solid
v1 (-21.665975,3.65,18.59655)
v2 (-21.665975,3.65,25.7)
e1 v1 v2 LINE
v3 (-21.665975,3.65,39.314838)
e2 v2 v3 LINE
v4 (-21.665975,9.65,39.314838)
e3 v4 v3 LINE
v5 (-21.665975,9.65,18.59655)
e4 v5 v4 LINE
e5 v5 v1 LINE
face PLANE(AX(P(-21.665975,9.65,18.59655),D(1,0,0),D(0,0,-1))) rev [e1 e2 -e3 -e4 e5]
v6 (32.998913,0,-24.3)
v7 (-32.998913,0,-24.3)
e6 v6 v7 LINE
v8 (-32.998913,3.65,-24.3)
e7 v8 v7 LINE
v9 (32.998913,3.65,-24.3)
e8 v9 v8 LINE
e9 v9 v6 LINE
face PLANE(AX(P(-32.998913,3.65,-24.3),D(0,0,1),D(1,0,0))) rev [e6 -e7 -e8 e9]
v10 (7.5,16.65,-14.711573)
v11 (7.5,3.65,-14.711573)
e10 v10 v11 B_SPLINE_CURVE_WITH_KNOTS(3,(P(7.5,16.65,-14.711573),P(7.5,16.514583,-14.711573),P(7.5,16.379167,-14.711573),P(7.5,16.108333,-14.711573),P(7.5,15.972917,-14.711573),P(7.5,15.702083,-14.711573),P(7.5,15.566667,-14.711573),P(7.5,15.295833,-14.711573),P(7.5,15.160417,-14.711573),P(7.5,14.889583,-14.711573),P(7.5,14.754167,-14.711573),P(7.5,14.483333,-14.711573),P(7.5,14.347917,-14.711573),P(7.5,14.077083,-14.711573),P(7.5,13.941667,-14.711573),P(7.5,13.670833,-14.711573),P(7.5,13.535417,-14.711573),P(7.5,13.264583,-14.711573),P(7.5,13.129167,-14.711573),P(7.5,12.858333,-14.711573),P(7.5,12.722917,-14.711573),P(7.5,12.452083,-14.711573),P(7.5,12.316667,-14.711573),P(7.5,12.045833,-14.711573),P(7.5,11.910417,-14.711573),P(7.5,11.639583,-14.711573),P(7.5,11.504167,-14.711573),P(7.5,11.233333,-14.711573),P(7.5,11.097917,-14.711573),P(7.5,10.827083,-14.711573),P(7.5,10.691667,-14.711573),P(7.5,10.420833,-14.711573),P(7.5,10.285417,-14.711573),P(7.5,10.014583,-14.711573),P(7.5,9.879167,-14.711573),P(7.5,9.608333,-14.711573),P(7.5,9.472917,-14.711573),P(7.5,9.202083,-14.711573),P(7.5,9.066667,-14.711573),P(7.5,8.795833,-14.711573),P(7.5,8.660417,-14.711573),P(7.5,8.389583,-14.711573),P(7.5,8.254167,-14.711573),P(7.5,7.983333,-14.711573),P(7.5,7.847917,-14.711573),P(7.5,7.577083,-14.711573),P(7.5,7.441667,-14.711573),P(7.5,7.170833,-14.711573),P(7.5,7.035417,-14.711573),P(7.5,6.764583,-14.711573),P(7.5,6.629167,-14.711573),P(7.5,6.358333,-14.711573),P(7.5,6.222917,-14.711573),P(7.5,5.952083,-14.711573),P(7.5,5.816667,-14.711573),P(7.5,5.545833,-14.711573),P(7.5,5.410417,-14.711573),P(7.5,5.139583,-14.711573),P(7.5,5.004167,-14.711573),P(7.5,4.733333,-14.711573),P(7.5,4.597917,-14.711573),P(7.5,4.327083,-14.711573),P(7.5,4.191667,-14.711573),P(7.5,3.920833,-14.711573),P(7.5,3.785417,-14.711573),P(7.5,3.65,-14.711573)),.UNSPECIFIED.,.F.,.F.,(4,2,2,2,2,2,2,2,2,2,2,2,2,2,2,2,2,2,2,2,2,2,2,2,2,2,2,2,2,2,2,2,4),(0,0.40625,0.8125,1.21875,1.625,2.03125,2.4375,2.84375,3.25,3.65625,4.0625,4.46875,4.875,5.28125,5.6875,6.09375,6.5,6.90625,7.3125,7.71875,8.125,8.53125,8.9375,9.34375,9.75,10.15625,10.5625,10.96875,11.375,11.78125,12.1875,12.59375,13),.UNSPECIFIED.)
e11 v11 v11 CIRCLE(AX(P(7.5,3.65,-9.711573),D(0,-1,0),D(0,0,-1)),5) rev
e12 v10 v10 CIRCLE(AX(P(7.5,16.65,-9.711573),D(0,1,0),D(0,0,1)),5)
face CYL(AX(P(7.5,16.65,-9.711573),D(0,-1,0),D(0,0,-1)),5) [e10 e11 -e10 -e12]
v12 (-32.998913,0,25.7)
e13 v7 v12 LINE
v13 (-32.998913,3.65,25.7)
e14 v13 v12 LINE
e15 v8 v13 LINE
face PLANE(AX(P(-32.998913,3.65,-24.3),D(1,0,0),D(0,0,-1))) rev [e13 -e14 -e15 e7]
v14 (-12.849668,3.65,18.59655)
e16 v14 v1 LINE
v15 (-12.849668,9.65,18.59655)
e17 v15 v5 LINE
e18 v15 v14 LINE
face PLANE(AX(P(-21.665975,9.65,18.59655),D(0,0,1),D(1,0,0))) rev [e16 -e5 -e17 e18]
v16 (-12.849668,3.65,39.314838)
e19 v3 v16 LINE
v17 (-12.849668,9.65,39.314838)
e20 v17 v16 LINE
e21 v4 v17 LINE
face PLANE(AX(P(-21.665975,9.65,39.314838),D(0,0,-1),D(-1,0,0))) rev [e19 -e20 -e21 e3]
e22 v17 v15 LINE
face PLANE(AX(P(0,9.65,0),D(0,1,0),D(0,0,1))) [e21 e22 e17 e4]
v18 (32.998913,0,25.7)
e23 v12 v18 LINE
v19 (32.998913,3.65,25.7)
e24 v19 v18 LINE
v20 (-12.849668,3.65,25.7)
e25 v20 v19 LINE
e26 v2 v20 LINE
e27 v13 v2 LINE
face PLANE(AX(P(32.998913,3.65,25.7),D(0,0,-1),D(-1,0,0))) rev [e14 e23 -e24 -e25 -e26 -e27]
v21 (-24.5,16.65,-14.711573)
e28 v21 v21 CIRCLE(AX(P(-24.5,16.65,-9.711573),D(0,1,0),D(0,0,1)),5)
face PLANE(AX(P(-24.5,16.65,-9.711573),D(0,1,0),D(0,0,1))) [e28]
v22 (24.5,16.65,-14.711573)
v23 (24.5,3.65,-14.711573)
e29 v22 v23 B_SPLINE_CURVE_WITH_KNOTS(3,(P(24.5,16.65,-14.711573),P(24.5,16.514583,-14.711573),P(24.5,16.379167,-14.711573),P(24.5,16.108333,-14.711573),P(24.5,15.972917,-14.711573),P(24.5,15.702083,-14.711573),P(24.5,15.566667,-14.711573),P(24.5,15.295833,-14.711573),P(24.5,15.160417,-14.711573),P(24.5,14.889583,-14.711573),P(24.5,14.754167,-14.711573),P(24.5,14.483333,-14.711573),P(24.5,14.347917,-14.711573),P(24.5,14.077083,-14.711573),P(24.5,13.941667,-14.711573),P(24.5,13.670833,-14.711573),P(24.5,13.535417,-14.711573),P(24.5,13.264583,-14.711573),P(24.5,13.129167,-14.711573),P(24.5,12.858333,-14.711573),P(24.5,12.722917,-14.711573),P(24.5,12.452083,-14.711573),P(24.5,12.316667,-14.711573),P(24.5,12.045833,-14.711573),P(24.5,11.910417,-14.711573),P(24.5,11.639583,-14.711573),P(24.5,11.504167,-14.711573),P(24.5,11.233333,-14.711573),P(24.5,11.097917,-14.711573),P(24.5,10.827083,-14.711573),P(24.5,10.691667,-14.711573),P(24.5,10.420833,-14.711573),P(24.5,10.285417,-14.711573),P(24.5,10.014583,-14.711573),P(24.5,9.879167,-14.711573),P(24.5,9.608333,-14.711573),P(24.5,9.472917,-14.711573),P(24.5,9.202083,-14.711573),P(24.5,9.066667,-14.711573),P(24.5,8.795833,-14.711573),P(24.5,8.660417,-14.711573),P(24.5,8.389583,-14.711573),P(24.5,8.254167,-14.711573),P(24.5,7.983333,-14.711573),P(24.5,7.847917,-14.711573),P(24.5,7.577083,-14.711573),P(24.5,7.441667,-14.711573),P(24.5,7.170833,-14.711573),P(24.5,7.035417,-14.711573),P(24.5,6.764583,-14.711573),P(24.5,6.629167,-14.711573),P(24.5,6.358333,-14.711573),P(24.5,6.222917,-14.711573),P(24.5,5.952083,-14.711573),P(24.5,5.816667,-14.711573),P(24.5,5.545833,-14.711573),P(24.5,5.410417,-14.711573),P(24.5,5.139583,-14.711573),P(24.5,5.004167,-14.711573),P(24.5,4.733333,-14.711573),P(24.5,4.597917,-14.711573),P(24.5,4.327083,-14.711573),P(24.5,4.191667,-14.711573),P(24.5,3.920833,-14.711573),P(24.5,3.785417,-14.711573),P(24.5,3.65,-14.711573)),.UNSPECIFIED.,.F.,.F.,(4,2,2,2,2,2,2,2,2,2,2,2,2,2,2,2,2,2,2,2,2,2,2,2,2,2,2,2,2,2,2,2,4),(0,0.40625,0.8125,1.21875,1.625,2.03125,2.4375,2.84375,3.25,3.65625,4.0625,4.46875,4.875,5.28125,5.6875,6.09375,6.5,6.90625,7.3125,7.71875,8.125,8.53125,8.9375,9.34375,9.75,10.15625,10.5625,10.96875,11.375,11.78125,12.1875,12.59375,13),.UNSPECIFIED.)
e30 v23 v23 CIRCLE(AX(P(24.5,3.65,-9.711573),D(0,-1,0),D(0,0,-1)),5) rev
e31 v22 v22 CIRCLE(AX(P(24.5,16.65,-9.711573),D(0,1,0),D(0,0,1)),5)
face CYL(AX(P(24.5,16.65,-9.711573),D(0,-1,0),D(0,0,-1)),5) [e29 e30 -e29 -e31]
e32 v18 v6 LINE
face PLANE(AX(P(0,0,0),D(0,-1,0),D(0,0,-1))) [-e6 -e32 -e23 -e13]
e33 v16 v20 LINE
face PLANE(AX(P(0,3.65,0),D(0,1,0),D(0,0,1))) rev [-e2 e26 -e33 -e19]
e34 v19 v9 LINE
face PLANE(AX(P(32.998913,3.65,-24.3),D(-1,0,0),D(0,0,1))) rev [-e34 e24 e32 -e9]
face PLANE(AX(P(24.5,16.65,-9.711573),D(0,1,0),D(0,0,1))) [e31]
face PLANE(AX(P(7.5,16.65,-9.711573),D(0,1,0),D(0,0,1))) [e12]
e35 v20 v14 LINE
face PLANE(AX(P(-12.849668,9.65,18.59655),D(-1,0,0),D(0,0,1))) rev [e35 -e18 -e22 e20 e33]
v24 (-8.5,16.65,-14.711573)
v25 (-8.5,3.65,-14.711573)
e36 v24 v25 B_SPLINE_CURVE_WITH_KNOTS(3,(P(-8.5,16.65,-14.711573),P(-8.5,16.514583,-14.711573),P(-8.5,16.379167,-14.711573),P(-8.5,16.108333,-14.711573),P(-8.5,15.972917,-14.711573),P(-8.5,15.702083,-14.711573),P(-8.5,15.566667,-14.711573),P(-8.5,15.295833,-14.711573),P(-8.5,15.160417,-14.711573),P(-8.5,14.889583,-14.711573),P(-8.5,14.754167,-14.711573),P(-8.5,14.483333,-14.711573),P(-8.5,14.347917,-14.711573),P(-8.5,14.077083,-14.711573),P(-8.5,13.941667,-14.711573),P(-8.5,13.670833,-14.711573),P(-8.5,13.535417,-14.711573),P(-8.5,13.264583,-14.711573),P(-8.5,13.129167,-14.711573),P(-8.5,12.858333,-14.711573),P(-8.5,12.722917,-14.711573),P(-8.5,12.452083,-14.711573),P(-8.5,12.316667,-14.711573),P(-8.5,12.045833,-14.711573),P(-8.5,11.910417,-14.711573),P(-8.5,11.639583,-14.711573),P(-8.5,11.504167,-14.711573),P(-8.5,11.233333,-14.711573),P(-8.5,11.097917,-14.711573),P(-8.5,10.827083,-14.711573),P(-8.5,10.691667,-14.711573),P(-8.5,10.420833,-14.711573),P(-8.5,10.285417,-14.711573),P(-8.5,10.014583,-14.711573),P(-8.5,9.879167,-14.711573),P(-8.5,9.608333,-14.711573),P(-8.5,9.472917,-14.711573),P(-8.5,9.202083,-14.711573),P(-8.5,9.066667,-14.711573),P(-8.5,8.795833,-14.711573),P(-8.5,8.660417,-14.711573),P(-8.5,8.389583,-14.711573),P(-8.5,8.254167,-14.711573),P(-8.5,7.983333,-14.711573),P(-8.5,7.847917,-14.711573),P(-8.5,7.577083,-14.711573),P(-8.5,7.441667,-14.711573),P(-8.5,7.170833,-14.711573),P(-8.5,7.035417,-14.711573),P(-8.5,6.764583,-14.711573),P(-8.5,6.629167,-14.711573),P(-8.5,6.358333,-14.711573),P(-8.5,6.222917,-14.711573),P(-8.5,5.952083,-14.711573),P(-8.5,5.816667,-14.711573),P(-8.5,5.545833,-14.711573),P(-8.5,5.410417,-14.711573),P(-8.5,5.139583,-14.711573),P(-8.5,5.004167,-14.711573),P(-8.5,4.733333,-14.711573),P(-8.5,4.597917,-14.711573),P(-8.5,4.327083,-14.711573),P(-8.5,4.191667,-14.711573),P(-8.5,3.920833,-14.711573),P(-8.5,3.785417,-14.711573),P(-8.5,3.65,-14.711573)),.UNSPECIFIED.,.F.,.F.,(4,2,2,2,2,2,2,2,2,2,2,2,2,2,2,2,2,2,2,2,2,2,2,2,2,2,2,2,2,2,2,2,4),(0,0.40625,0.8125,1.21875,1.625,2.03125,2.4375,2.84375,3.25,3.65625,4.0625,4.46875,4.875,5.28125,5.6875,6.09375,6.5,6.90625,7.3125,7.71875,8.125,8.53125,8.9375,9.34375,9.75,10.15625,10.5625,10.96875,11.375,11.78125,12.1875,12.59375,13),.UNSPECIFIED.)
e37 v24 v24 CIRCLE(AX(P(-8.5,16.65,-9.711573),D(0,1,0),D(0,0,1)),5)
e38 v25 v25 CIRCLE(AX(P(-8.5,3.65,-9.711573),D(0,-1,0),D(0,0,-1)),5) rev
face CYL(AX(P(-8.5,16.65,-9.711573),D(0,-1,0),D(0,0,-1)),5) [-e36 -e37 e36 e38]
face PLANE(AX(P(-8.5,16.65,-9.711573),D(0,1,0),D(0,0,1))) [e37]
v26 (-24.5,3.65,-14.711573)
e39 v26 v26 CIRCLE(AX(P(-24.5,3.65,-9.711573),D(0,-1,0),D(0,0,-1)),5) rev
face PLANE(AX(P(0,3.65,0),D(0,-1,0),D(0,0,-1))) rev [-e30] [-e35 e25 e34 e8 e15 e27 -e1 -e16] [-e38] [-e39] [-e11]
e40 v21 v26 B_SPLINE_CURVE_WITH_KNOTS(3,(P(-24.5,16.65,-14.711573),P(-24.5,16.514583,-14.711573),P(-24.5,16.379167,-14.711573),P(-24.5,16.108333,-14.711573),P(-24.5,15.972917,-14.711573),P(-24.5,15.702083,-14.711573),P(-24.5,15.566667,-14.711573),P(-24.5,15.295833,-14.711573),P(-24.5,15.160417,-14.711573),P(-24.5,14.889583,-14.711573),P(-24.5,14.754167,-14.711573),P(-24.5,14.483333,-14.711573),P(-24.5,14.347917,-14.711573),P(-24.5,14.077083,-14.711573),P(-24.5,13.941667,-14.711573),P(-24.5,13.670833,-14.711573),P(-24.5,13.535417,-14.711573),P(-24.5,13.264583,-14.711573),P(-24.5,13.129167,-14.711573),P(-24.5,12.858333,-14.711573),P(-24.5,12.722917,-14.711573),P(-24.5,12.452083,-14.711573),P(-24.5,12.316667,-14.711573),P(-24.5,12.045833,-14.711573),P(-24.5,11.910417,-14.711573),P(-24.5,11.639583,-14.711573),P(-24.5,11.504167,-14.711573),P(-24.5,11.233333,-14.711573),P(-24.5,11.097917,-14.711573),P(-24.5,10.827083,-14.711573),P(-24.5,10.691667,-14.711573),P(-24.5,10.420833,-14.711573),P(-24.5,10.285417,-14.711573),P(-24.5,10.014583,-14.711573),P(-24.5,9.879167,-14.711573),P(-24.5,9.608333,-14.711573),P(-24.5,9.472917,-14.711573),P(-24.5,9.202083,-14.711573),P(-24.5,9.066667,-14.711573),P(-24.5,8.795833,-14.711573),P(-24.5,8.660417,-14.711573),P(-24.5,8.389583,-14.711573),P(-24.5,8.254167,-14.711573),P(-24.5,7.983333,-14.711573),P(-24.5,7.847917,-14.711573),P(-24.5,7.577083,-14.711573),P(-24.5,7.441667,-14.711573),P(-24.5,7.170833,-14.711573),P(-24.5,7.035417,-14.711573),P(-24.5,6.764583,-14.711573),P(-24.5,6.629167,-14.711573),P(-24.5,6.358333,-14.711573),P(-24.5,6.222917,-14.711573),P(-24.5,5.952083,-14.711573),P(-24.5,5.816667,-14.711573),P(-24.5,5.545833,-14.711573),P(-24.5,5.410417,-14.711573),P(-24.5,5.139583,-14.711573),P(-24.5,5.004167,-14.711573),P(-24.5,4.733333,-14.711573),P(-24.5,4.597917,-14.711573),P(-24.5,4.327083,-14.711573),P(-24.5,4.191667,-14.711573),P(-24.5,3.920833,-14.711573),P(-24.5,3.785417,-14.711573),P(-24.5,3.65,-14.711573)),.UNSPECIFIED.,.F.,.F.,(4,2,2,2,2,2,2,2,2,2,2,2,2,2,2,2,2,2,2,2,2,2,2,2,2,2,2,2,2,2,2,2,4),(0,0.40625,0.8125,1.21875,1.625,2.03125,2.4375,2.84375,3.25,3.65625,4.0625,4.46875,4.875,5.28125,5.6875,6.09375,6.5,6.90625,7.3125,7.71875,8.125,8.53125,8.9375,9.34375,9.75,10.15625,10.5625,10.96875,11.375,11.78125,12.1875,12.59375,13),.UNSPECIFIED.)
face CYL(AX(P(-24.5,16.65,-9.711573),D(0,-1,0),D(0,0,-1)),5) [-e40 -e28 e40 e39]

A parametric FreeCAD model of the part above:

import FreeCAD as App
import Part
import Sketcher

doc = App.newDocument("Part")
body = doc.addObject("PartDesign::Body", "Body")

# Sketch on XZ plane
sketch1 = body.newObject("Sketcher::SketchObject", "Sketch")
sketch1.AttachmentSupport = (doc.getObject("XZ_Plane"), [""])
sketch1.MapMode = "FlatFace"
sketch1.addGeometry([
    Part.LineSegment(App.Vector(-32.998913, -24.3, 0), App.Vector(-32.998913, 25.7, 0)),
    Part.LineSegment(App.Vector(-32.998913, 25.7, 0), App.Vector(32.998913, 25.7, 0)),
    Part.LineSegment(App.Vector(32.998913, 25.7, 0), App.Vector(32.998913, -24.3, 0)),
    Part.LineSegment(App.Vector(32.998913, -24.3, 0), App.Vector(-32.998913, -24.3, 0)),
], False)
sketch1.addConstraint([
    Sketcher.Constraint("Coincident", 0, 2, 1, 1),
    Sketcher.Constraint("Coincident", 1, 2, 2, 1),
    Sketcher.Constraint("Coincident", 2, 2, 3, 1),
    Sketcher.Constraint("Coincident", 3, 2, 0, 1),
    Sketcher.Constraint("Vertical", 0),
    Sketcher.Constraint("Horizontal", 1),
    Sketcher.Constraint("Vertical", 2),
    Sketcher.Constraint("Horizontal", 3),
    Sketcher.Constraint("DistanceY", 0, 1, 0, 2, 50.0),
    Sketcher.Constraint("DistanceY", -1, 1, 0, 2, 25.7),
    Sketcher.Constraint("DistanceX", 1, 1, 1, 2, 65.997827),
    Sketcher.Constraint("DistanceX", 0, 2, -1, 1, 32.998913),
])
pad1 = body.newObject("PartDesign::Pad", "Pad")
pad1.Profile = sketch1
pad1.Length = 3.65
pad1.Reversed = True

# Sketch on XZ plane
sketch2 = body.newObject("Sketcher::SketchObject", "Sketch001")
sketch2.AttachmentSupport = (doc.getObject("XZ_Plane"), [""])
sketch2.MapMode = "FlatFace"
sketch2.AttachmentOffset = App.Placement(App.Vector(0, 0, -3.65), App.Rotation())
sketch2.addGeometry([
    Part.Circle(App.Vector(-24.5, -9.711573, 0), App.Vector(0, 0, 1), 5),
    Part.Circle(App.Vector(-8.5, -9.711573, 0), App.Vector(0, 0, 1), 5),
    Part.Circle(App.Vector(7.5, -9.711573, 0), App.Vector(0, 0, 1), 5),
    Part.Circle(App.Vector(24.5, -9.711573, 0), App.Vector(0, 0, 1), 5),
], False)
sketch2.addConstraint([
    Sketcher.Constraint("Equal", 0, 1),
    Sketcher.Constraint("Equal", 1, 2),
    Sketcher.Constraint("Equal", 2, 3),
    Sketcher.Constraint("Symmetric", 0, 3, 3, 3, -2),
    Sketcher.Constraint("Horizontal", 0, 3, 1, 3),
    Sketcher.Constraint("Horizontal", 1, 3, 2, 3),
    Sketcher.Constraint("Diameter", 0, 10.0),
    Sketcher.Constraint("DistanceX", 0, 3, 1, 3, 16.0),
    Sketcher.Constraint("DistanceX", 1, 3, 2, 3, 16.0),
    Sketcher.Constraint("DistanceX", 2, 3, 3, 3, 17.0),
    Sketcher.Constraint("DistanceY", 0, 3, -1, 1, 9.711573),
])
pad2 = body.newObject("PartDesign::Pad", "Pad001")
pad2.Profile = sketch2
pad2.Length = 13
pad2.Reversed = True

# Sketch on XZ plane
sketch3 = body.newObject("Sketcher::SketchObject", "Sketch002")
sketch3.AttachmentSupport = (doc.getObject("XZ_Plane"), [""])
sketch3.MapMode = "FlatFace"
sketch3.AttachmentOffset = App.Placement(App.Vector(0, 0, -3.65), App.Rotation())
sketch3.addGeometry([
    Part.LineSegment(App.Vector(-21.665975, 18.59655, 0), App.Vector(-21.665975, 39.314838, 0)),
    Part.LineSegment(App.Vector(-21.665975, 39.314838, 0), App.Vector(-12.849668, 39.314838, 0)),
    Part.LineSegment(App.Vector(-12.849668, 39.314838, 0), App.Vector(-12.849668, 18.59655, 0)),
    Part.LineSegment(App.Vector(-12.849668, 18.59655, 0), App.Vector(-21.665975, 18.59655, 0)),
], False)
sketch3.addConstraint([
    Sketcher.Constraint("Coincident", 0, 2, 1, 1),
    Sketcher.Constraint("Coincident", 1, 2, 2, 1),
    Sketcher.Constraint("Coincident", 2, 2, 3, 1),
    Sketcher.Constraint("Coincident", 3, 2, 0, 1),
    Sketcher.Constraint("Vertical", 0),
    Sketcher.Constraint("Horizontal", 1),
    Sketcher.Constraint("Vertical", 2),
    Sketcher.Constraint("Horizontal", 3),
    Sketcher.Constraint("DistanceX", 1, 1, 1, 2, 8.816307),
    Sketcher.Constraint("DistanceY", 0, 1, 0, 2, 20.718288),
    Sketcher.Constraint("DistanceY", -1, 1, 0, 2, 39.314838),
    Sketcher.Constraint("DistanceX", 1, 2, -1, 1, 12.849668),
])
pad3 = body.newObject("PartDesign::Pad", "Pad002")
pad3.Profile = sketch3
pad3.Length = 6
pad3.Reversed = True

doc.recompute()
